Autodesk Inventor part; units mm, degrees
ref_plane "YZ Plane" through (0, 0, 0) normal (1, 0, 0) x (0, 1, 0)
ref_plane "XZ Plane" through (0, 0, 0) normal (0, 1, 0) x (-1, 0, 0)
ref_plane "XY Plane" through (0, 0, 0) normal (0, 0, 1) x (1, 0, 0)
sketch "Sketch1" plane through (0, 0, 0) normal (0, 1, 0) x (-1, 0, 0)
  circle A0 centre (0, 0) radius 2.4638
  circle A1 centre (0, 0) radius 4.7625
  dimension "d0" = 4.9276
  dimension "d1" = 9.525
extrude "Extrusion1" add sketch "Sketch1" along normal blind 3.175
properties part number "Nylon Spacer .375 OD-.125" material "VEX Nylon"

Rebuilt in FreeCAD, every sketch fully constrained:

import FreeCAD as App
import Part
import Sketcher
Q = App.Units.Quantity

doc = App.newDocument("Part")
body = doc.addObject("PartDesign::Body", "Body")

# Sketch on XZ plane
sketch1 = body.newObject("Sketcher::SketchObject", "Sketch")
sketch1.AttachmentSupport = (doc.getObject("XZ_Plane"), [""])
sketch1.MapMode = "FlatFace"
sketch1.addGeometry([
    Part.Circle(App.Vector(0, 0, 0), App.Vector(0, 0, 1), 4.8),
    Part.Circle(App.Vector(0, 0, 0), App.Vector(0, 0, 1), 2.5),
], False)
sketch1.addConstraint([
    Sketcher.Constraint("Coincident", 0, 3, -1, 1),
    Sketcher.Constraint("Coincident", 1, 3, -1, 1),
    Sketcher.Constraint("Diameter", 0, Q("0.375 in")),
    Sketcher.Constraint("Diameter", 1, Q("0.194 in")),
])
pad1 = body.newObject("PartDesign::Pad", "Pad")
pad1.Profile = sketch1
pad1.Length = Q("0.125 in")
pad1.Reversed = True

doc.recompute()
